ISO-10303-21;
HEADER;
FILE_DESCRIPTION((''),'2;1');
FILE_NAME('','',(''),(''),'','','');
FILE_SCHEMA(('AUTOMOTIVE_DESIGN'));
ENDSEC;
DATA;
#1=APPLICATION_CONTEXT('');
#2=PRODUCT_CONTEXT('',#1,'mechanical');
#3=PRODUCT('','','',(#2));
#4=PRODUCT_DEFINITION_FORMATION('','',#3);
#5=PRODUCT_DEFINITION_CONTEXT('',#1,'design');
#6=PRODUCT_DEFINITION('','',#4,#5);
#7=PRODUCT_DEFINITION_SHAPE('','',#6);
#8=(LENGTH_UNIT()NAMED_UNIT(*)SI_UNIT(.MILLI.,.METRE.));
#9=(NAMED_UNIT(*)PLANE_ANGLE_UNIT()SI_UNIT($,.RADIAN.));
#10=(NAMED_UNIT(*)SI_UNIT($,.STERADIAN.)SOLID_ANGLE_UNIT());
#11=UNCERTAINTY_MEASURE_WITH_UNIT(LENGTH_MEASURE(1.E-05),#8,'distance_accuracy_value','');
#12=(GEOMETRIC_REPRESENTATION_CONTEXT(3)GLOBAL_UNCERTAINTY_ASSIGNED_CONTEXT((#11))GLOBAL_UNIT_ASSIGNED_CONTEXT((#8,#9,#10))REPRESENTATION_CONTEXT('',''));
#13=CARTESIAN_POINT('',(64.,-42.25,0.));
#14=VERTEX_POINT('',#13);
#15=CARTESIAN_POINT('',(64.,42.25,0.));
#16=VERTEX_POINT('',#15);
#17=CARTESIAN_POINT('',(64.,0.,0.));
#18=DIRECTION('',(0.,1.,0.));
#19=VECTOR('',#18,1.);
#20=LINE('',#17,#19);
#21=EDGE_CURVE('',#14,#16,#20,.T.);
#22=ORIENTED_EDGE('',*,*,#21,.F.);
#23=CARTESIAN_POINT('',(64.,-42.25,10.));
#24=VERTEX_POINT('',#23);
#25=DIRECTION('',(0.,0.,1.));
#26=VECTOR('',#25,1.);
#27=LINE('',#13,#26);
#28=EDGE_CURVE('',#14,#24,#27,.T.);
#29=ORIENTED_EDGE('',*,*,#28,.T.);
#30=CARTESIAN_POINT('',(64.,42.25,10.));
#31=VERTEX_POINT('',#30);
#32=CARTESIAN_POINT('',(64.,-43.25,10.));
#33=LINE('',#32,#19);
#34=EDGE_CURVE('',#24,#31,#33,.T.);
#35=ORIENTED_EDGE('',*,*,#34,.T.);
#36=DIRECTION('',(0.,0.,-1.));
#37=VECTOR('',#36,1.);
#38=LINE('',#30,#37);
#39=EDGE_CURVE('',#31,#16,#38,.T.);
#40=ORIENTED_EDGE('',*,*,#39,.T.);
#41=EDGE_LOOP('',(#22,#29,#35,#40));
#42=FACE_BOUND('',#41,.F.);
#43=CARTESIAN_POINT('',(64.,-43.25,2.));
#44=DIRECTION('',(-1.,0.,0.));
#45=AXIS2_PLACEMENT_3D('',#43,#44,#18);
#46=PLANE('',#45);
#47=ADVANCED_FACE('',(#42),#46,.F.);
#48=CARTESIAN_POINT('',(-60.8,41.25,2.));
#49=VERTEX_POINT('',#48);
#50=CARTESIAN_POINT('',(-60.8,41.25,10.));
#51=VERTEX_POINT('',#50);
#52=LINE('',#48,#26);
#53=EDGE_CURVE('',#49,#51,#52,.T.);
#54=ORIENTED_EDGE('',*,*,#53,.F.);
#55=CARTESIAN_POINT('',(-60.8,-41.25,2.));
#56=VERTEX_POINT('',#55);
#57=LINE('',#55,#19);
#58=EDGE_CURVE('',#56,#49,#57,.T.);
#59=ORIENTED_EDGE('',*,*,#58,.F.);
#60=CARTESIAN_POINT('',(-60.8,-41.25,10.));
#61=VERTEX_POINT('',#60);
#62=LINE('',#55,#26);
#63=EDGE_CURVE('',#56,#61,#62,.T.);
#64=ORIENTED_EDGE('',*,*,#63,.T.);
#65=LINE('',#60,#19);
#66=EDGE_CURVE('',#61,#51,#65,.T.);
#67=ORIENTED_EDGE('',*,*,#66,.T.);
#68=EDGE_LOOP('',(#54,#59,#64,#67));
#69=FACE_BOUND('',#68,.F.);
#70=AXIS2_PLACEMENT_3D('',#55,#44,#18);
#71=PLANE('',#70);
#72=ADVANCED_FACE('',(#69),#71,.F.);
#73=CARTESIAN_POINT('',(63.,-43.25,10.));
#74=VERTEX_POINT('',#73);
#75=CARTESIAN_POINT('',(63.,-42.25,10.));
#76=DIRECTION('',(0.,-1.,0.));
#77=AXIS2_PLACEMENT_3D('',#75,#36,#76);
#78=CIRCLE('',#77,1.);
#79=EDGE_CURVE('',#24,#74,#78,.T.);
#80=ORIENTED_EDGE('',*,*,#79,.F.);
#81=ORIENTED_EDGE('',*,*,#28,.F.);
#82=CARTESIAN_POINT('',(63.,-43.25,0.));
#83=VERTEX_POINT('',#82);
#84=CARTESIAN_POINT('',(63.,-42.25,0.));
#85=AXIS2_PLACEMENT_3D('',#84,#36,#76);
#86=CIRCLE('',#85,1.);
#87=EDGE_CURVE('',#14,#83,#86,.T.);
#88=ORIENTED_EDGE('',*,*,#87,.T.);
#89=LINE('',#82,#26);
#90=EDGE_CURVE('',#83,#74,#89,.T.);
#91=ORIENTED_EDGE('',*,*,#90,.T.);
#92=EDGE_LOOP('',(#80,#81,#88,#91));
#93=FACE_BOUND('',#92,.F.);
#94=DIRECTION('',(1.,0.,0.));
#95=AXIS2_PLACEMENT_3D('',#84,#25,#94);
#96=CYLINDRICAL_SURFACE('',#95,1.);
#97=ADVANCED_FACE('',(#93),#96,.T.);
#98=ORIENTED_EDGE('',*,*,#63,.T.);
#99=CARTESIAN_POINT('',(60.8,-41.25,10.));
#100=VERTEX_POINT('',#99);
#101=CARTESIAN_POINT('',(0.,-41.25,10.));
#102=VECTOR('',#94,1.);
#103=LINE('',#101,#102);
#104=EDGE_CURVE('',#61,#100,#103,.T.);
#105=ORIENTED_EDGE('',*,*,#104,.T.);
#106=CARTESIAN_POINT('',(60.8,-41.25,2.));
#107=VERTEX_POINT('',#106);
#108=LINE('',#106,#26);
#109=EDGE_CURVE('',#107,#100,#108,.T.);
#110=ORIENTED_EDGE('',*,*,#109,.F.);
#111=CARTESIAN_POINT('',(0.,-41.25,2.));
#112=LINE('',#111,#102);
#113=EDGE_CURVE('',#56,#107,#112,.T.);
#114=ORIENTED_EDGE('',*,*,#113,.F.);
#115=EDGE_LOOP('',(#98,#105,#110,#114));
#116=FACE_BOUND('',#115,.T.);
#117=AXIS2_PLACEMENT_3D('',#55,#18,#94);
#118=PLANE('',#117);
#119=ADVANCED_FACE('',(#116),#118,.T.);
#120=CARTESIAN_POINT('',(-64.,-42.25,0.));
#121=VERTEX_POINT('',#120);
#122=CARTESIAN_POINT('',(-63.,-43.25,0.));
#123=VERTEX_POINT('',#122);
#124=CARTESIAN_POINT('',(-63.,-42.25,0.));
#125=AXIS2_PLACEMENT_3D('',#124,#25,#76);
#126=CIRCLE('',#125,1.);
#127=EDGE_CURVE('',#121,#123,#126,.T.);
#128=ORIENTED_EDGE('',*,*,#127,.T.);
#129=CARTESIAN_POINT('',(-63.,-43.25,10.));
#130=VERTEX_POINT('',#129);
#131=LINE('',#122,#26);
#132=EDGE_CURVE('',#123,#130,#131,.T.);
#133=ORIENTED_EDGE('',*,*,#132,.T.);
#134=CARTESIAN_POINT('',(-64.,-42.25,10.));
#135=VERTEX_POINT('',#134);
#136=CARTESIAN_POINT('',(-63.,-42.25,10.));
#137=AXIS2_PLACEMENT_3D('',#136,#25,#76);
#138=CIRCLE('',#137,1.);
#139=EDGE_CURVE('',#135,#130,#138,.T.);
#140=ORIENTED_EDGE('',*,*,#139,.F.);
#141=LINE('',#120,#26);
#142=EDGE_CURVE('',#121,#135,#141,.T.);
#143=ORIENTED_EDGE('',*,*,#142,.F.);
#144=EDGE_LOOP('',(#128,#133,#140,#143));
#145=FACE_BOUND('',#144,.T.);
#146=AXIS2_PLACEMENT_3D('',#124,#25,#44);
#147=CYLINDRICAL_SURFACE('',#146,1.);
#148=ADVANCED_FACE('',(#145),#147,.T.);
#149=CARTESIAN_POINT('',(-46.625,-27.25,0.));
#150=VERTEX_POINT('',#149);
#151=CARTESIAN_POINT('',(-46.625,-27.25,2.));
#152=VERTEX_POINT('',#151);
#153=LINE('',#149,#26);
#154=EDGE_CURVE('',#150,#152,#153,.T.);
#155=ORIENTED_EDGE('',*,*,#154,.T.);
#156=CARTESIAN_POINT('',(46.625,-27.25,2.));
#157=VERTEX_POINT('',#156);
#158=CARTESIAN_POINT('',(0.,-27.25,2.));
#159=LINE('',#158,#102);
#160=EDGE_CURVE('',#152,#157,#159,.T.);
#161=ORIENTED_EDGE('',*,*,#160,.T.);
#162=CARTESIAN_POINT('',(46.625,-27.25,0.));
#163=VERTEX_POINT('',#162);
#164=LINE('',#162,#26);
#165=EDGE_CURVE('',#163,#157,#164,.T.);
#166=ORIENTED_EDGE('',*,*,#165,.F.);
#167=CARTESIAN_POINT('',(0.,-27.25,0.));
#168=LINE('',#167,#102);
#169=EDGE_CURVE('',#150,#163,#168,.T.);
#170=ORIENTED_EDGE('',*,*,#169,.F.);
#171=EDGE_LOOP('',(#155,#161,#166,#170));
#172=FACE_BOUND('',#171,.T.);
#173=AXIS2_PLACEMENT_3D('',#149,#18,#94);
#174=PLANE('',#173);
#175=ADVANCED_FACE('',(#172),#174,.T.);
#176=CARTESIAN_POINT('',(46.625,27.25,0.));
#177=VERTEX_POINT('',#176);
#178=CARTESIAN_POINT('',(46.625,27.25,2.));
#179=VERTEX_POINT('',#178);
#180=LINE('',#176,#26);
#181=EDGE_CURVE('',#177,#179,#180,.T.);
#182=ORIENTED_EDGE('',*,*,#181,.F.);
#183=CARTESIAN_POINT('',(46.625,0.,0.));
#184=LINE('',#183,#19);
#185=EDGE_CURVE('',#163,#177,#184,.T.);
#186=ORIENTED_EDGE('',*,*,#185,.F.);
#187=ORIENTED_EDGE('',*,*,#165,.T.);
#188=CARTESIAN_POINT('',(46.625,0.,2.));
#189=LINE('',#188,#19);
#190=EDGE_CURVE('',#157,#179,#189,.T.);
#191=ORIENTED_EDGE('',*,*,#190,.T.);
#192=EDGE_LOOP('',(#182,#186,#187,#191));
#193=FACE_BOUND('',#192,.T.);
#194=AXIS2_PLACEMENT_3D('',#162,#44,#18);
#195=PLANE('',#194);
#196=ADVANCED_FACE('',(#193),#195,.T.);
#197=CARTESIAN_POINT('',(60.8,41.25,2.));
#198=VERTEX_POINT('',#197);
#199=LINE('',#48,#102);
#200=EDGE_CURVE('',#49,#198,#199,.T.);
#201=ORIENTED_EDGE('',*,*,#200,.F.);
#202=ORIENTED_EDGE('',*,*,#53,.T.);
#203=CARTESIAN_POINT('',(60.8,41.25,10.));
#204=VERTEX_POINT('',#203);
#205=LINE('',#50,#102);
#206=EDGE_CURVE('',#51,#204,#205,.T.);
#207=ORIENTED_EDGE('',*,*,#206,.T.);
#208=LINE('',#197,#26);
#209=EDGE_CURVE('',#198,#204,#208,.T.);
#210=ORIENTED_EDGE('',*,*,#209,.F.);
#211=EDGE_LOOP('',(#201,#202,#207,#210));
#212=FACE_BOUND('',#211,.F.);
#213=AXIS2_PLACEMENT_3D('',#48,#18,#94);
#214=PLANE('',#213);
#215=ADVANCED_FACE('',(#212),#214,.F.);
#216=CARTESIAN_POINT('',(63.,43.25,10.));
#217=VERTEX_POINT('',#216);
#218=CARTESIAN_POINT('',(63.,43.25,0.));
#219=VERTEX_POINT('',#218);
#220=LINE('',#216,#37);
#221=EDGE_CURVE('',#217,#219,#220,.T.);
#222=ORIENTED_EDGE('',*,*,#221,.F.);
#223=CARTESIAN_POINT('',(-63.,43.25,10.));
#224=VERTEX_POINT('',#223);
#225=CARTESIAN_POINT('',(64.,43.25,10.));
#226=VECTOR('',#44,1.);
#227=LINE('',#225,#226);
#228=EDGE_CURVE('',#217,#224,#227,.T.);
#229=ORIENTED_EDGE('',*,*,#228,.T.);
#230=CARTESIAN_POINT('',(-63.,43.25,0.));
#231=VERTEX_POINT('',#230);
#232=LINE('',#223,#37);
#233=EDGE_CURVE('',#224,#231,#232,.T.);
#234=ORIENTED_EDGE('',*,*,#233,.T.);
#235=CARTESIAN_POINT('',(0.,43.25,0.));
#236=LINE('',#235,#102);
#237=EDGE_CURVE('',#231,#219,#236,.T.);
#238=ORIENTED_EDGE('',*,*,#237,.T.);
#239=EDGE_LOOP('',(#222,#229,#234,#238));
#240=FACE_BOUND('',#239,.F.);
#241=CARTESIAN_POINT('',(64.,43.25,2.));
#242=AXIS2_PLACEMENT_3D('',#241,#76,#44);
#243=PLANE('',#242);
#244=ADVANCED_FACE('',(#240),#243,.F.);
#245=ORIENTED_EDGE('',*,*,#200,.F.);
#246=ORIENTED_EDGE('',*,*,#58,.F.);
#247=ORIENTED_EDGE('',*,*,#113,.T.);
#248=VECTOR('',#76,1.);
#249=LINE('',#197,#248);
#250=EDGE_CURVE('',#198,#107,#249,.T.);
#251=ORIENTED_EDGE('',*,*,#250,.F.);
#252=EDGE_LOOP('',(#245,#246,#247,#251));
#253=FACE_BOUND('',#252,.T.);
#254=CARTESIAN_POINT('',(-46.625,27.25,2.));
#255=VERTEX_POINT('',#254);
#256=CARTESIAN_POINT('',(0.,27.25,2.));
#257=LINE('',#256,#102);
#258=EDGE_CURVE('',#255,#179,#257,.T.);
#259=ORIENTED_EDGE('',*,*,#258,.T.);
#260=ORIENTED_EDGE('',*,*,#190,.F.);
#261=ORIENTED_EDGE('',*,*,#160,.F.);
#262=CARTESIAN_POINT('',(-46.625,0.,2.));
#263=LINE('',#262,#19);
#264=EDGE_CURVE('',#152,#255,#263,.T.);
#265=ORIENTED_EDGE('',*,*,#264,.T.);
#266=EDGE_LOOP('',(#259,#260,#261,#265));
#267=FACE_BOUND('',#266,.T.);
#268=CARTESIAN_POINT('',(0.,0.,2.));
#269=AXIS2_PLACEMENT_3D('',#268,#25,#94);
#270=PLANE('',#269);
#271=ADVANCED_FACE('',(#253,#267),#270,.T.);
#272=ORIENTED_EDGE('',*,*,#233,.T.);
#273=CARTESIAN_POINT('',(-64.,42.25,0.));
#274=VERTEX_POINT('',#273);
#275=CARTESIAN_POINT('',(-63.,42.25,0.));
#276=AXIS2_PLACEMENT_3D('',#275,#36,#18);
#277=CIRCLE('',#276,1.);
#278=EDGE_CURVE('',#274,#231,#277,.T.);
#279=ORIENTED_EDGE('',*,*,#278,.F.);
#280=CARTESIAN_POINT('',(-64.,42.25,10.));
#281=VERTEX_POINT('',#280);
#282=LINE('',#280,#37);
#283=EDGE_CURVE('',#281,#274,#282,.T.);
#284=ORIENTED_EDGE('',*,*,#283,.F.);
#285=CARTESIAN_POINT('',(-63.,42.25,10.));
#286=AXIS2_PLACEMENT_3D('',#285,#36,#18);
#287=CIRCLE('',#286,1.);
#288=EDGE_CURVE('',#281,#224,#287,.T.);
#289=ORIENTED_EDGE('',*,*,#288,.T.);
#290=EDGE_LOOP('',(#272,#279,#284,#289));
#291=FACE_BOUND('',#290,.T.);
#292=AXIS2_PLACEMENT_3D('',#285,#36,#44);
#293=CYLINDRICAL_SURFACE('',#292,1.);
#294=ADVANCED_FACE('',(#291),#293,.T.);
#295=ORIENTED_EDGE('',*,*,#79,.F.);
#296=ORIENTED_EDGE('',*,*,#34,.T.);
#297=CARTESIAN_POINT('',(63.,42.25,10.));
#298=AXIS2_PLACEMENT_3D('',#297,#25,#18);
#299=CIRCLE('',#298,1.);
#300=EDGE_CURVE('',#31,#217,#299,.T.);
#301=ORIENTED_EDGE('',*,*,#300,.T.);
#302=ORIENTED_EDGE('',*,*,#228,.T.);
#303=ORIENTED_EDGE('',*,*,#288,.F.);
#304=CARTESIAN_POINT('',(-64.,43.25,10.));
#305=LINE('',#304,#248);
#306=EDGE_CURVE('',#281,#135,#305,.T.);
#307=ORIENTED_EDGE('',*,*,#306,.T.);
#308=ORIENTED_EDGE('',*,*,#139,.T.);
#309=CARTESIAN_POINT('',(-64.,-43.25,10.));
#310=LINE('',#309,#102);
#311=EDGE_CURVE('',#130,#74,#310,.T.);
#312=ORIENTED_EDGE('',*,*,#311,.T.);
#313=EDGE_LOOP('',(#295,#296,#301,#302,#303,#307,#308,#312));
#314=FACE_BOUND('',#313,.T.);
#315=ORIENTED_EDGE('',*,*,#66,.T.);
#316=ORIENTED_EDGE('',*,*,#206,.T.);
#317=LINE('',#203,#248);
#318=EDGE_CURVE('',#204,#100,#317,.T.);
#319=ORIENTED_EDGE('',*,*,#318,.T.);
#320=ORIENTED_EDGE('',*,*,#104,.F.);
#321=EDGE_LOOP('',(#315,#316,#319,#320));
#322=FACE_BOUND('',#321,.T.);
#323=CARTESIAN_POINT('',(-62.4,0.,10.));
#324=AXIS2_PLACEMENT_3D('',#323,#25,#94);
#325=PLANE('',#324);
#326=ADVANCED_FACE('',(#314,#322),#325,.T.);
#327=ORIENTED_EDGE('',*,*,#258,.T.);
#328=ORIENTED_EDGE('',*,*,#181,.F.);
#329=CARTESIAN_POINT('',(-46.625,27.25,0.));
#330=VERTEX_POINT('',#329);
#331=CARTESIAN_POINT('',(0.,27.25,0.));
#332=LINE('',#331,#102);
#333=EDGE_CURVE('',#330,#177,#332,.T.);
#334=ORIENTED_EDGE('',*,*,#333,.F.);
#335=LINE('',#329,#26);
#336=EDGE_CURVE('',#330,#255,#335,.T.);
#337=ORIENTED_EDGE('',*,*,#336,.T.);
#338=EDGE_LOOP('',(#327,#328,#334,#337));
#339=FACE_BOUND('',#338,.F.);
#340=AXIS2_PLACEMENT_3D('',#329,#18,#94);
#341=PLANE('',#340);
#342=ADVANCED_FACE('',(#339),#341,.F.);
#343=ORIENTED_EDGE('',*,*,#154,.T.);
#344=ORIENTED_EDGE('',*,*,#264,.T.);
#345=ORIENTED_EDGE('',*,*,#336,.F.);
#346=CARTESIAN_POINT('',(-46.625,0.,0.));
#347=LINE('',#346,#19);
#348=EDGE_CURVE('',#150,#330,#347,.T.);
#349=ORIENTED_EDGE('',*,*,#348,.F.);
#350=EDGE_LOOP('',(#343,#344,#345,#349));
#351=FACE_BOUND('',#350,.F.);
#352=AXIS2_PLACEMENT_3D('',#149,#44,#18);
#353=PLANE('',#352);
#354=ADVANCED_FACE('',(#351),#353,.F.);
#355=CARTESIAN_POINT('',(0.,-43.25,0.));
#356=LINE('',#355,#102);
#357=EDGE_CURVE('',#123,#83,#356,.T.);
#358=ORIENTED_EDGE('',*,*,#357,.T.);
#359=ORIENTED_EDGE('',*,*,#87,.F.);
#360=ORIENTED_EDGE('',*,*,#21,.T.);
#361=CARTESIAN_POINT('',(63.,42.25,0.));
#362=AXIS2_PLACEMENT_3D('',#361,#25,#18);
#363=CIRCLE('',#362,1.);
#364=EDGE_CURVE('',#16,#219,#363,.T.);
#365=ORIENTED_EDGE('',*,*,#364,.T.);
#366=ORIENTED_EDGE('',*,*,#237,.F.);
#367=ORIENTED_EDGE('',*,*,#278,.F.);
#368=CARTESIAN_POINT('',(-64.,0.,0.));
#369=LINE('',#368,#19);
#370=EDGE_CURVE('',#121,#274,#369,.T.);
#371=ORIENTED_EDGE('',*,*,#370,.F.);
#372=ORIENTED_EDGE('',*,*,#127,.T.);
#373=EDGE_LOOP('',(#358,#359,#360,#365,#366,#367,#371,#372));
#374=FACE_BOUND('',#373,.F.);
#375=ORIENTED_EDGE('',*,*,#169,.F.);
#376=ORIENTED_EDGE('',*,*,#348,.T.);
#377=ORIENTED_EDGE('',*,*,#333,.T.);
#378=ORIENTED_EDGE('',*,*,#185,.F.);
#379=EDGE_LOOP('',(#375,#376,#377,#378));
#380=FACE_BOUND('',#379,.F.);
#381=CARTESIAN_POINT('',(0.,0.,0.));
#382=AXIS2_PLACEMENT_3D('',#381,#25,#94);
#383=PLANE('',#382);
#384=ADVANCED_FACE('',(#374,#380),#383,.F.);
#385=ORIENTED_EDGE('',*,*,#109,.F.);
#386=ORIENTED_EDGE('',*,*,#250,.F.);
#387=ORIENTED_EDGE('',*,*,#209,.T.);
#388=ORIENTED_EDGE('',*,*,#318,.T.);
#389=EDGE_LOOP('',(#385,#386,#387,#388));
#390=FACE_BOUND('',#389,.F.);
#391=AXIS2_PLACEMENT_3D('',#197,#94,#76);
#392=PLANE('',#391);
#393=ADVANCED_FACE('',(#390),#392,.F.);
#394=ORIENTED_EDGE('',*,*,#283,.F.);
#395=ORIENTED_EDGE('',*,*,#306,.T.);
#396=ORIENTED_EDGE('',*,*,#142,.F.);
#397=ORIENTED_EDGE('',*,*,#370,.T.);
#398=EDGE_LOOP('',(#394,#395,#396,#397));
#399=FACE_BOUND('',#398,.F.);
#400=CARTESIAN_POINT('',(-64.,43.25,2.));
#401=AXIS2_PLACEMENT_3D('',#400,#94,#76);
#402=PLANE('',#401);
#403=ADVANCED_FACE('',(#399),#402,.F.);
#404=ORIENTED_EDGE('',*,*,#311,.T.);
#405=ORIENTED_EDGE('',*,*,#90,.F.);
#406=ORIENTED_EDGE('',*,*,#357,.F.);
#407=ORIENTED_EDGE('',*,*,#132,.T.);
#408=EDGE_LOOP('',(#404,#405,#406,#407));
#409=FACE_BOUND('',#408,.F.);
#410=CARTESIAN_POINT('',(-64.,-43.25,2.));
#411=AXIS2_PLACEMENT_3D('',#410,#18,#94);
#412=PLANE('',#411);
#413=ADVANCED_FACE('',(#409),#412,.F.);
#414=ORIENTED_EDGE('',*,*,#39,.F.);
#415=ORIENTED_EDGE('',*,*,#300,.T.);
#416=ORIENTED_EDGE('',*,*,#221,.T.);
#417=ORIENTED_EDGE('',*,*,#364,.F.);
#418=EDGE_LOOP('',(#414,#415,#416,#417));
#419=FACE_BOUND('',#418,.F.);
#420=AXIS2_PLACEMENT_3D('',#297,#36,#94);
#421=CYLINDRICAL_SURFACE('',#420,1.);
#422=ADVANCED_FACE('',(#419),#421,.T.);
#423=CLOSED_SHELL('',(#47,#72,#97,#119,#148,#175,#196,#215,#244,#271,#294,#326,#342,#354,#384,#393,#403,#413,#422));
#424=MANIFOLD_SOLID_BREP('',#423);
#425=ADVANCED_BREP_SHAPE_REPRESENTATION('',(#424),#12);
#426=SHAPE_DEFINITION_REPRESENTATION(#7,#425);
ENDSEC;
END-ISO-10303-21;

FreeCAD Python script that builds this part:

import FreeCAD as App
import Part
import Sketcher
from FreeCAD import Vector
Q = App.Units.Quantity


def edges_at(feature, points):
    """Names of the edges that pass closest to the given points."""
    edges = feature.Shape.Edges
    near = lambda p: min(range(len(edges)), key=lambda i: edges[i].distToShape(Part.Vertex(*p))[0])
    return sorted({f"Edge{near(p) + 1}" for p in points})


def add_polygon(sketch, points):
    """Adds a closed chain of lines whose ends are joined by coincident constraints."""
    first, n = sketch.GeometryCount, len(points)
    for a, b in zip(points, points[1:] + points[:1]):
        sketch.addGeometry(Part.LineSegment(App.Vector(*a, 0), App.Vector(*b, 0)), False)
    for i in range(n):
        sketch.addConstraint(Sketcher.Constraint("Coincident", first + i, 2, first + (i + 1) % n, 1))

doc = App.newDocument("Part")
body = doc.addObject("PartDesign::Body", "Body")

sketch1 = body.newObject("Sketcher::SketchObject", "Sketch")
sketch1.AttachmentSupport = (doc.getObject("XY_Plane"), [""])
sketch1.MapMode = "FlatFace"
add_polygon(sketch1, [(-64, 43), (-64, -43), (64, -43), (64, 43)])
add_polygon(sketch1, [(47, -27), (-47, -27), (-47, 27), (47, 27)])
sketch1.addConstraint(Sketcher.Constraint("Vertical", 0))
sketch1.addConstraint(Sketcher.Constraint("Horizontal", 1))
sketch1.addConstraint(Sketcher.Constraint("Vertical", 2))
sketch1.addConstraint(Sketcher.Constraint("Horizontal", 3))
sketch1.addConstraint(Sketcher.Constraint("Horizontal", 4))
sketch1.addConstraint(Sketcher.Constraint("Vertical", 5))
sketch1.addConstraint(Sketcher.Constraint("Horizontal", 6))
sketch1.addConstraint(Sketcher.Constraint("Vertical", 7))
sketch1.addConstraint(Sketcher.Constraint("Symmetric", 0, 2, 2, 2, -1, 1))
sketch1.addConstraint(Sketcher.Constraint("Symmetric", 4, 2, 6, 2, -1, 1))
sketch1.addConstraint(Sketcher.Constraint("DistanceX", 1, 1, 1, 2, Q("128 mm")))
sketch1.addConstraint(Sketcher.Constraint("DistanceY", 0, 2, 0, 1, Q("86.5 mm")))
sketch1.addConstraint(Sketcher.Constraint("DistanceY", 5, 1, 5, 2, Q("54.5 mm")))
sketch1.addConstraint(Sketcher.Constraint("DistanceX", 4, 2, 4, 1, Q("93.25 mm")))
pad1 = body.newObject("PartDesign::Pad", "Pad")
pad1.Profile = sketch1
pad1.Length = 2

sketch2 = body.newObject("Sketcher::SketchObject", "Sketch001")
sketch2.AttachmentSupport = (doc.getObject("XY_Plane"), [""])
sketch2.MapMode = "FlatFace"
sketch2.AttachmentOffset = App.Placement(Vector(0, 0, 2), App.Rotation())
add_polygon(sketch2, [(-64, 43), (-64, -43), (64, -43), (64, 43)])
add_polygon(sketch2, [(61, -41), (-61, -41), (-61, 41), (61, 41)])
sketch2.addConstraint(Sketcher.Constraint("Vertical", 0))
sketch2.addConstraint(Sketcher.Constraint("Horizontal", 1))
sketch2.addConstraint(Sketcher.Constraint("Vertical", 2))
sketch2.addConstraint(Sketcher.Constraint("Horizontal", 3))
sketch2.addConstraint(Sketcher.Constraint("Horizontal", 4))
sketch2.addConstraint(Sketcher.Constraint("Vertical", 5))
sketch2.addConstraint(Sketcher.Constraint("Horizontal", 6))
sketch2.addConstraint(Sketcher.Constraint("Vertical", 7))
sketch2.addConstraint(Sketcher.Constraint("Symmetric", 0, 2, 2, 2, -1, 1))
sketch2.addConstraint(Sketcher.Constraint("Symmetric", 4, 2, 6, 2, -1, 1))
sketch2.addConstraint(Sketcher.Constraint("DistanceX", 1, 1, 1, 2, Q("128 mm")))
sketch2.addConstraint(Sketcher.Constraint("DistanceX", 4, 2, 4, 1, Q("121.6 mm")))
sketch2.addConstraint(Sketcher.Constraint("DistanceY", 0, 2, 0, 1, Q("86.5 mm")))
sketch2.addConstraint(Sketcher.Constraint("DistanceY", 5, 1, 5, 2, Q("82.5 mm")))
pad2 = body.newObject("PartDesign::Pad", "Pad001")
pad2.Profile = sketch2
pad2.Length = 8
doc.recompute()

fillet = body.newObject("PartDesign::Fillet", "Fillet")
fillet.Base = (pad2, edges_at(pad2, [
    (-64, -43.25, 5),
    (-64, 43.25, 5),
    (64, -43.25, 5),
    (64, 43.25, 5),
]))
fillet.Radius = 1

doc.recompute()
